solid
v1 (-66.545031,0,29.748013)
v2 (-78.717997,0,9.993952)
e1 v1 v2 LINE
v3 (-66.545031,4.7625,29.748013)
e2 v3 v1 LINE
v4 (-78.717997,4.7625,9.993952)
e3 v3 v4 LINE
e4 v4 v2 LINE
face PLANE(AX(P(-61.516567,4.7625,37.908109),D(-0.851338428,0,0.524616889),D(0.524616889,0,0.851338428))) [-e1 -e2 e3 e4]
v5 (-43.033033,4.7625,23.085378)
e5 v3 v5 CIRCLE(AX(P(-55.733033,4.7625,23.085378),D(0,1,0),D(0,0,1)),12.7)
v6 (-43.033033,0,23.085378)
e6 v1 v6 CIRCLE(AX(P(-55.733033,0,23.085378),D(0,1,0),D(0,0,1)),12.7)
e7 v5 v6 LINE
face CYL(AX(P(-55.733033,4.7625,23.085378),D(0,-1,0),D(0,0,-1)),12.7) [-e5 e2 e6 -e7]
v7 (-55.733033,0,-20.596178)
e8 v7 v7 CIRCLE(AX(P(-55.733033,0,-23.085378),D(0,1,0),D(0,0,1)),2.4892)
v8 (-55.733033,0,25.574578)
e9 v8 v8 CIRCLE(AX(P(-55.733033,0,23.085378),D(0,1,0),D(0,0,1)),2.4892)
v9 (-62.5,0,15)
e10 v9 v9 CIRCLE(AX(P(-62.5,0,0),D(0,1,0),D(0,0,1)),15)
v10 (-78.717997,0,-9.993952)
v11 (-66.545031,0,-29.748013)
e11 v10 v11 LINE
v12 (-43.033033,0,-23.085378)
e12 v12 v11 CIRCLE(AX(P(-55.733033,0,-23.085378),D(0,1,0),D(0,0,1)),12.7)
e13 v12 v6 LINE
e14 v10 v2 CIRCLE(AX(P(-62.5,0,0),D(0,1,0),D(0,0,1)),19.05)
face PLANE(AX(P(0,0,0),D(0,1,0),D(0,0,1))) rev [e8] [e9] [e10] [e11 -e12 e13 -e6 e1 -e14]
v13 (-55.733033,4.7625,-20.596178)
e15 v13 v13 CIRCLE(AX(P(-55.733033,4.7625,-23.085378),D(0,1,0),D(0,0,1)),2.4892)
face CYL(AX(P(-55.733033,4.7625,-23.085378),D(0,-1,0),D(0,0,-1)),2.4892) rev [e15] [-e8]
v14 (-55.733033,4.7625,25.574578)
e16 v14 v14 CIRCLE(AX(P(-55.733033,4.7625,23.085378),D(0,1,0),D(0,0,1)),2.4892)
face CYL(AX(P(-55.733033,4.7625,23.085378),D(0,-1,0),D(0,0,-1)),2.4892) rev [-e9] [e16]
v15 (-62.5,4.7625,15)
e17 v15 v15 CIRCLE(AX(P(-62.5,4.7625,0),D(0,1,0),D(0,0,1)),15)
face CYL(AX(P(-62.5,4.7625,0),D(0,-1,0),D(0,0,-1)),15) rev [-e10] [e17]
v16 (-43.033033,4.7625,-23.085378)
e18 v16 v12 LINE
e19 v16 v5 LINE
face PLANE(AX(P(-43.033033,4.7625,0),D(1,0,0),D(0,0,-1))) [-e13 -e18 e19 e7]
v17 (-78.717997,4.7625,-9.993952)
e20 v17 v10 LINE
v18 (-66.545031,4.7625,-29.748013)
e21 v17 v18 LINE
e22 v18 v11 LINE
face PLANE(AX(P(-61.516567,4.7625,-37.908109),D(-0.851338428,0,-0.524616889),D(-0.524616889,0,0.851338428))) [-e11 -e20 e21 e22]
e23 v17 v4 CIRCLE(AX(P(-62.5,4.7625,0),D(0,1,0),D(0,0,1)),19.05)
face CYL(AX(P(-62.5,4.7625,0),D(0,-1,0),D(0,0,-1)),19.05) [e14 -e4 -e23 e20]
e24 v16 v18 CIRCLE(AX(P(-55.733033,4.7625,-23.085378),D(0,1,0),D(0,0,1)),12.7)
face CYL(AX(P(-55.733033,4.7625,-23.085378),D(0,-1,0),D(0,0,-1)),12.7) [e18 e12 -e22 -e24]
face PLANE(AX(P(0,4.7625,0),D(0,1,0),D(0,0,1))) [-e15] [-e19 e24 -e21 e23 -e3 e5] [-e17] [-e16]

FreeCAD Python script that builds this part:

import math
import FreeCAD as App
import Part
import Sketcher

V = App.Vector
Q = App.Units.Quantity

doc = App.newDocument("Part")
params = doc.addObject("Spreadsheet::Sheet", "Params")
for row, (alias, value) in enumerate([
    ("sketch1_radius", "0.5 in"),
    ("sketch1_radius2", "0.75 in"),
    ("sketch1_diameter", "0.196 in"),
    ("pad1_length", "0.1875 in"),
], start=1):
    params.set(f"A{row}", alias)
    params.set(f"B{row}", "=" + value)
    params.setAlias(f"B{row}", alias)

body = doc.addObject("PartDesign::Body", "Body")

# Sketch on XZ plane
sketch1 = body.newObject("Sketcher::SketchObject", "Sketch")
sketch1.AttachmentSupport = (doc.getObject("XZ_Plane"), [""])
sketch1.MapMode = "FlatFace"
sketch1.addGeometry([
    Part.LineSegment(V(-66.5, -29.7, 0), V(-78.7, -10, 0)),  # 0
    Part.ArcOfCircle(Part.Circle(V(-62.5, 0, 0), V(0, 0, 1), 19.1), math.radians(148), math.radians(212)),  # 1
    Part.LineSegment(V(-78.7, 10, 0), V(-66.5, 29.7, 0)),  # 2
    Part.ArcOfCircle(Part.Circle(V(-55.7, 23.1, 0), V(0, 0, 1), 12.7), math.radians(0), math.radians(148)),  # 3
    Part.LineSegment(V(-43, 23.1, 0), V(-43, -23.1, 0)),  # 4
    Part.ArcOfCircle(Part.Circle(V(-55.7, -23.1, 0), V(0, 0, 1), 12.7), math.radians(-148), math.radians(0)),  # 5
    Part.Circle(V(-55.7, 23.1, 0), V(0, 0, 1), 2.5),  # 6
    Part.Circle(V(-62.5, 0, 0), V(0, 0, 1), 15),  # 7
    Part.Circle(V(-55.7, -23.1, 0), V(0, 0, 1), 2.5),  # 8
], False)
sketch1.addConstraint([
    Sketcher.Constraint("Tangent", 0, 2, 1, 2),
    Sketcher.Constraint("Tangent", 1, 1, 2, 1),
    Sketcher.Constraint("Tangent", 2, 2, 3, 2),
    Sketcher.Constraint("Tangent", 3, 1, 4, 1),
    Sketcher.Constraint("Tangent", 4, 2, 5, 2),
    Sketcher.Constraint("Tangent", 5, 1, 0, 1),
    Sketcher.Constraint("Vertical", 4),
    Sketcher.Constraint("Coincident", 6, 3, 3, 3),
    Sketcher.Constraint("Coincident", 7, 3, 1, 3),
    Sketcher.Constraint("Coincident", 8, 3, 5, 3),
    Sketcher.Constraint("Equal", 3, 5),
    Sketcher.Constraint("Equal", 6, 8),
    Sketcher.Constraint("Symmetric", 0, 2, 1, 1, -1),
    Sketcher.Constraint("Radius", 3, Q("0.5 in")),
    Sketcher.Constraint("Radius", 1, Q("0.75 in")),
    Sketcher.Constraint("Diameter", 6, Q("0.196 in")),
    Sketcher.Constraint("Diameter", 7, 30.0),
    Sketcher.Constraint("DistanceX", 1, 3, -1, 1, 62.5),
    Sketcher.Constraint("DistanceX", 2, 2, 3, 3, 10.811998),
    Sketcher.Constraint("DistanceY", 4, 2, 4, 1, 46.170756),
])
sketch1.setExpression("Constraints[13]", "Params.sketch1_radius")
sketch1.setExpression("Constraints[14]", "Params.sketch1_radius2")
sketch1.setExpression("Constraints[15]", "Params.sketch1_diameter")
pad1 = body.newObject("PartDesign::Pad", "Pad")
pad1.Profile = sketch1
pad1.setExpression("Length", "Params.pad1_length")
pad1.Reversed = True

doc.recompute()
